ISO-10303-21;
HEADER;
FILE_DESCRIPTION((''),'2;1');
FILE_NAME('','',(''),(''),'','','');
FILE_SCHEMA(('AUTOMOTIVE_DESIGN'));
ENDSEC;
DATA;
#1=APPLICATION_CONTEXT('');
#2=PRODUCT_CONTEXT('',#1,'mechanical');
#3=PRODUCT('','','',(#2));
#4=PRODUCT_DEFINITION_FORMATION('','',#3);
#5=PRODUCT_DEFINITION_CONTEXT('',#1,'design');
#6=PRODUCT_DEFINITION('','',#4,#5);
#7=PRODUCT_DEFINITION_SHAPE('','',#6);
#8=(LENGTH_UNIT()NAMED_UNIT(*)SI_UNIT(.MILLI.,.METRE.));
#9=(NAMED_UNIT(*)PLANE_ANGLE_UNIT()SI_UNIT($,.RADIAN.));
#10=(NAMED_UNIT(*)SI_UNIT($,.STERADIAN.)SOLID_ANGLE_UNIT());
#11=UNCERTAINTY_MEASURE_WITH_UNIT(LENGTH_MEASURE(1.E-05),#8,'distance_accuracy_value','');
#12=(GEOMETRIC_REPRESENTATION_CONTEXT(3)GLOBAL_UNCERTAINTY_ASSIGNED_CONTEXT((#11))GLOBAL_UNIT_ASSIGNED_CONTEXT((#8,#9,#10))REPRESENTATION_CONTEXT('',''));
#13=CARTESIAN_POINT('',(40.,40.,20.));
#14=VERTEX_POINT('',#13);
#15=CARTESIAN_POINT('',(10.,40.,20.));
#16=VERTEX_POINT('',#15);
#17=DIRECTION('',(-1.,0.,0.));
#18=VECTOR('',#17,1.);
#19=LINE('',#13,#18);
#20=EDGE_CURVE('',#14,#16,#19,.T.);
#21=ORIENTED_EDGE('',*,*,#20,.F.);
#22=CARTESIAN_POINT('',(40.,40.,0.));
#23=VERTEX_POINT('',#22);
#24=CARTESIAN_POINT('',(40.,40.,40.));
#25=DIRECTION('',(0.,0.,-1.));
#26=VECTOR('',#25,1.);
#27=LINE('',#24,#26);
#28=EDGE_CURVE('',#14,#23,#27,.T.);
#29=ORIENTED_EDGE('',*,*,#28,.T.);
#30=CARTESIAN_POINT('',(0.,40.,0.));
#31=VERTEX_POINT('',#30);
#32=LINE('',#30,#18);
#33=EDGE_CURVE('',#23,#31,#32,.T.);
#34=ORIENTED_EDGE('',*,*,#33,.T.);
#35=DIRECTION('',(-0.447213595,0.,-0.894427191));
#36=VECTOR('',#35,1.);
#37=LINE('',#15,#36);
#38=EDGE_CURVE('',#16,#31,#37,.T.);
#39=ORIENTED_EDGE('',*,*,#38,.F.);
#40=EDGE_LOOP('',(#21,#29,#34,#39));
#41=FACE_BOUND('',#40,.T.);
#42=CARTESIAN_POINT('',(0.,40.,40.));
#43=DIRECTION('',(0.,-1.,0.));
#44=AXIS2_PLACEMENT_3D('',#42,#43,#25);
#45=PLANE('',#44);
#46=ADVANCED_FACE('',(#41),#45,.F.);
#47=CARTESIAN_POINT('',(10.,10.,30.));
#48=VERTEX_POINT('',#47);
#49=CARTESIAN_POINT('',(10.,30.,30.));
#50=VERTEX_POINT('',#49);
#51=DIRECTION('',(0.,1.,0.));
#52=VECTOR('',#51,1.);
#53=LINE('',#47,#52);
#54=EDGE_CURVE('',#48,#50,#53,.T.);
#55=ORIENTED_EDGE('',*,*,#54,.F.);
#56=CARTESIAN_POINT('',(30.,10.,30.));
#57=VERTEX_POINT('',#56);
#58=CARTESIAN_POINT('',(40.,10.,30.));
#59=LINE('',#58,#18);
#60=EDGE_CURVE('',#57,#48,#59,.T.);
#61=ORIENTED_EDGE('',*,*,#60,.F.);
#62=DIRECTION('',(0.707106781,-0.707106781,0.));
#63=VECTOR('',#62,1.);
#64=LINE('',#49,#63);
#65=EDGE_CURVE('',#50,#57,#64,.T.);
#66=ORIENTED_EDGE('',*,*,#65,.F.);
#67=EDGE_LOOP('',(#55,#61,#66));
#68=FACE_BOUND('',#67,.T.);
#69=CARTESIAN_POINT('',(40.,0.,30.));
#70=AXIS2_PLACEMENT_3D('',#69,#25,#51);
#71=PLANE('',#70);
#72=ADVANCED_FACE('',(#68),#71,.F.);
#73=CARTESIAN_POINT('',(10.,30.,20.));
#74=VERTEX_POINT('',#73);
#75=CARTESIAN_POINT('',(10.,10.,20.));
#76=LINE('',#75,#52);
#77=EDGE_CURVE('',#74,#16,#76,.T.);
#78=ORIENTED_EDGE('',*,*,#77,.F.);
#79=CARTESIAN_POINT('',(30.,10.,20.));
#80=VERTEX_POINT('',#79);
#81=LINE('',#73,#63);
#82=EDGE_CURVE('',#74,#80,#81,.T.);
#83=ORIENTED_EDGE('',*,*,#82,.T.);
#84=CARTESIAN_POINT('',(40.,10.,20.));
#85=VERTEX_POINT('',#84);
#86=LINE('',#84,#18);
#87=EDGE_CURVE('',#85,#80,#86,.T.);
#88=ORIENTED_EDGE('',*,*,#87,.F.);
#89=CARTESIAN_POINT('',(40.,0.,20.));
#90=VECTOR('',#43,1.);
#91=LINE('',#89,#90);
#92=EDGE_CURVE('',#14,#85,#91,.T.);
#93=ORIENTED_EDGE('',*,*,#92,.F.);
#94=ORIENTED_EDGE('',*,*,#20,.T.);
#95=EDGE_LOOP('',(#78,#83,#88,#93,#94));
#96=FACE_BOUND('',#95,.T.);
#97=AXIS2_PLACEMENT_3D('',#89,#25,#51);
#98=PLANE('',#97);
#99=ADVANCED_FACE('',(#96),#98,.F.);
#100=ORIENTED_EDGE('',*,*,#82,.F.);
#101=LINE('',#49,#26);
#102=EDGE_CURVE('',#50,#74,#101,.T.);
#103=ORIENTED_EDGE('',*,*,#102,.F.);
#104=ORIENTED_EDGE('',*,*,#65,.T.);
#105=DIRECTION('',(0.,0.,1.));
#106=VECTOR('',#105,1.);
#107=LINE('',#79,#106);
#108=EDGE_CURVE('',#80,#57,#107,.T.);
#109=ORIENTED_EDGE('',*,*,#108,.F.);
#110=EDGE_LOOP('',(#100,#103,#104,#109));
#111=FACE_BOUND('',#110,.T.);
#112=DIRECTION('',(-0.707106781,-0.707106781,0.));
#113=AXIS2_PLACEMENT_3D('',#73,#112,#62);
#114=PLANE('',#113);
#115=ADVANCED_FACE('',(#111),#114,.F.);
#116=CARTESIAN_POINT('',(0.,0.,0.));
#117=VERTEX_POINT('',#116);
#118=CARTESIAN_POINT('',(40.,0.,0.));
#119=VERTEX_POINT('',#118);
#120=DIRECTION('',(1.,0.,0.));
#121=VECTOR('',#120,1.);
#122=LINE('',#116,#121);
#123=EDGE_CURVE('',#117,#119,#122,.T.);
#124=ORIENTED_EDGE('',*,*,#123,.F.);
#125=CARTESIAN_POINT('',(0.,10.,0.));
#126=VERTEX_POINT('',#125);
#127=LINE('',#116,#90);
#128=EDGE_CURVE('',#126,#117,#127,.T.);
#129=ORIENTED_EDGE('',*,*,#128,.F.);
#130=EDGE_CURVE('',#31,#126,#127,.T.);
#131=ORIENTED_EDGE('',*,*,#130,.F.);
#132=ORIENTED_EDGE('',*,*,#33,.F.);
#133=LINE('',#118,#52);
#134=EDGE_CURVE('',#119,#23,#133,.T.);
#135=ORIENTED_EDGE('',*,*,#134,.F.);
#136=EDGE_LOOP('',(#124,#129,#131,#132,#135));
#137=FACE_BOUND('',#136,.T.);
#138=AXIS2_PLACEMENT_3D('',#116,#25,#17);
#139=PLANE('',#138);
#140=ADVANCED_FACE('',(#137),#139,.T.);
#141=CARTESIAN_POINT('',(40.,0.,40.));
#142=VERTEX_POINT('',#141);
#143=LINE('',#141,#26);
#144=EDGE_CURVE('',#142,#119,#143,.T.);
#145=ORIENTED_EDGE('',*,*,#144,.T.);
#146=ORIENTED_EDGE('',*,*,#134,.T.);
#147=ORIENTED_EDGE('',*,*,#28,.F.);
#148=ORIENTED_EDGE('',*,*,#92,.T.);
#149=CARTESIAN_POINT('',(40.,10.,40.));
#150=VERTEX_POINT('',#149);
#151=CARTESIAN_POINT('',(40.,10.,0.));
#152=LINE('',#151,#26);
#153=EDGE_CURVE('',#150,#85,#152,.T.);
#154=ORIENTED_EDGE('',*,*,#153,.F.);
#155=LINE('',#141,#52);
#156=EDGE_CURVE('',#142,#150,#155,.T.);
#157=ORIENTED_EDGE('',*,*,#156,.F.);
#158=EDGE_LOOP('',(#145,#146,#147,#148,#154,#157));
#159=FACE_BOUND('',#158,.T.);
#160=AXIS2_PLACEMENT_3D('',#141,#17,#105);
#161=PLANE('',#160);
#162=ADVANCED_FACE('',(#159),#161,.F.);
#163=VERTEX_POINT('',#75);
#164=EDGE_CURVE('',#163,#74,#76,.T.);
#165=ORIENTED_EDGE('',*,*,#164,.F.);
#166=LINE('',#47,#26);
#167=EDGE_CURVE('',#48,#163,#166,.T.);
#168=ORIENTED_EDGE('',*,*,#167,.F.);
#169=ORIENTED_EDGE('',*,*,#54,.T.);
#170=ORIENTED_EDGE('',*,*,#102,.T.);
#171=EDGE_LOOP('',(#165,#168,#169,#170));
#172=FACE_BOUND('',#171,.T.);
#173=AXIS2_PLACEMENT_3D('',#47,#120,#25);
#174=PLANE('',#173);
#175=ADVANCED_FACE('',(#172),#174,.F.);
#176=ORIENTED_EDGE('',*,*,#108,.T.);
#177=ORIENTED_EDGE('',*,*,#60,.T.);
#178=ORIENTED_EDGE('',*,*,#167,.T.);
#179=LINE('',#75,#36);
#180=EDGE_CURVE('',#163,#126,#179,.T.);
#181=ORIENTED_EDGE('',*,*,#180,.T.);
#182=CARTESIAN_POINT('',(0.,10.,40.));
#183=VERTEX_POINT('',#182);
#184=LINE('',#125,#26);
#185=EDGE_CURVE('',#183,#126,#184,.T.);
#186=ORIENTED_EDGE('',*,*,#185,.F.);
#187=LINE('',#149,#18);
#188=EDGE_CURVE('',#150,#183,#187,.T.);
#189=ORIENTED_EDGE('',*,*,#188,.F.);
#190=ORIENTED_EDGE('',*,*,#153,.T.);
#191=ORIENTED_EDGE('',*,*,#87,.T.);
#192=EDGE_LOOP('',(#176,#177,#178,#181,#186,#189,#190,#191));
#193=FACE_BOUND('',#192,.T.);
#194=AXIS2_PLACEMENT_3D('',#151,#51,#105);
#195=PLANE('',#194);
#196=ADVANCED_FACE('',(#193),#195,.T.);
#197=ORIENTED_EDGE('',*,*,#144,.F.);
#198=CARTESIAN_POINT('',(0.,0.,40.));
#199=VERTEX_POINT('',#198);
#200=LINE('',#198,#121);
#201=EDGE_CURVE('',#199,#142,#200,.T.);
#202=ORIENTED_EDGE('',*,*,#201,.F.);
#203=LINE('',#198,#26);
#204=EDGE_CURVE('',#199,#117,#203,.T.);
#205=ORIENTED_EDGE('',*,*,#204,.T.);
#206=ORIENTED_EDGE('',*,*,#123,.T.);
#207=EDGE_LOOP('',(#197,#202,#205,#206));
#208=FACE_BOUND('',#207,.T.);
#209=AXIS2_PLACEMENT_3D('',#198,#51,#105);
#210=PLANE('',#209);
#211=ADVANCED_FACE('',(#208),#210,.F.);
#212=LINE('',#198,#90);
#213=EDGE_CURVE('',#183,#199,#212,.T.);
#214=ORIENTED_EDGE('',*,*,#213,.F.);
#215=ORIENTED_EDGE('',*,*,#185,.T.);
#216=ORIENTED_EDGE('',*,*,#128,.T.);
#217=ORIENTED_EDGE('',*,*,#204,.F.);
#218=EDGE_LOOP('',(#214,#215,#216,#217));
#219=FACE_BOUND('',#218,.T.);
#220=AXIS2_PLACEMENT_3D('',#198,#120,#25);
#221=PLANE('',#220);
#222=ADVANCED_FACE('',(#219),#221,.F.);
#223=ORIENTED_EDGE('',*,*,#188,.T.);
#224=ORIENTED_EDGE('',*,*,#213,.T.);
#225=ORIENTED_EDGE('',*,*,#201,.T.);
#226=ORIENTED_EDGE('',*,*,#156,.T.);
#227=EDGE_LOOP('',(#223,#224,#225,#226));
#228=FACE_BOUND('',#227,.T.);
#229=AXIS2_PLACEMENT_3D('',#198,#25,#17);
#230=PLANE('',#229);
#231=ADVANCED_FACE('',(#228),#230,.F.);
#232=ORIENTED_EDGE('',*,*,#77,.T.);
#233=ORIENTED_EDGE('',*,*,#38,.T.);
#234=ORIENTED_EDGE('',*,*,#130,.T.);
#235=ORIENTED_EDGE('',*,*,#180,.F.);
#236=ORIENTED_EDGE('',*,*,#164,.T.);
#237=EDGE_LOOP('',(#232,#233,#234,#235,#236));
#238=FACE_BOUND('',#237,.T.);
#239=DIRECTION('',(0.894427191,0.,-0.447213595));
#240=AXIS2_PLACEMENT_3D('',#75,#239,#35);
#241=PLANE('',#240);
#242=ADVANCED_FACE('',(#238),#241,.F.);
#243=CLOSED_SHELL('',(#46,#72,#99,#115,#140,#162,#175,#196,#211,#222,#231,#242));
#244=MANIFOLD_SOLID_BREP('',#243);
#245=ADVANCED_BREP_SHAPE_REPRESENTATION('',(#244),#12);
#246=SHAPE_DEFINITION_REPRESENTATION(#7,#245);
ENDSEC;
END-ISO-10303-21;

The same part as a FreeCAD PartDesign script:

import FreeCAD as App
import Part
import Sketcher


def add_polygon(sketch, points):
    """Adds a closed chain of lines whose ends are joined by coincident constraints."""
    first, n = sketch.GeometryCount, len(points)
    for a, b in zip(points, points[1:] + points[:1]):
        sketch.addGeometry(Part.LineSegment(App.Vector(*a, 0), App.Vector(*b, 0)), False)
    for i in range(n):
        sketch.addConstraint(Sketcher.Constraint("Coincident", first + i, 2, first + (i + 1) % n, 1))

doc = App.newDocument("Part")
params = doc.addObject("Spreadsheet::Sheet", "Params")
for row, (alias, value) in enumerate([
    ("sketch1_width", "40 mm"),
    ("pad1_length", "40 mm"),
    ("sketch2_width", "10 mm"),
    ("pocket1_length", "40 mm"),
    ("sketch3_width", "10 mm"),
    ("pocket2_length", "20 mm"),
    ("sketch4_width", "10 mm"),
    ("pocket3_length", "20 mm"),
    ("sketch5_width", "10 mm"),
    ("sketch5_height", "20 mm"),
    ("pocket4_length", "30 mm"),
    ("sketch6_width", "20 mm"),
    ("pocket5_length", "10 mm"),
], start=1):
    params.set(f"A{row}", alias)
    params.set(f"B{row}", "=" + value)
    params.setAlias(f"B{row}", alias)

body = doc.addObject("PartDesign::Body", "Body")

sketch1 = body.newObject("Sketcher::SketchObject", "Sketch")
sketch1.AttachmentSupport = (doc.getObject("XY_Plane"), [""])
sketch1.MapMode = "FlatFace"
add_polygon(sketch1, [(0, 40), (0, 0), (40, 0), (40, 40)])
sketch1.addConstraint(Sketcher.Constraint("Vertical", 0))
sketch1.addConstraint(Sketcher.Constraint("Horizontal", 1))
sketch1.addConstraint(Sketcher.Constraint("Vertical", 2))
sketch1.addConstraint(Sketcher.Constraint("Horizontal", 3))
sketch1.addConstraint(Sketcher.Constraint("Coincident", 0, 2, -1, 1))
sketch1.addConstraint(Sketcher.Constraint("Equal", 3, 0))
sketch1.addConstraint(Sketcher.Constraint("DistanceX", 1, 1, 1, 2, 40.0))
sketch1.setExpression("Constraints[10]", "Params.sketch1_width")
pad1 = body.newObject("PartDesign::Pad", "Pad")
pad1.Profile = sketch1
pad1.setExpression("Length", "Params.pad1_length")

sketch2 = body.newObject("Sketcher::SketchObject", "Sketch001")
sketch2.AttachmentSupport = (doc.getObject("YZ_Plane"), [""])
sketch2.MapMode = "FlatFace"
add_polygon(sketch2, [(40, 20), (30, 20), (30, 30), (10, 30), (10, 40), (40, 40)])
sketch2.addConstraint(Sketcher.Constraint("Horizontal", 0))
sketch2.addConstraint(Sketcher.Constraint("Vertical", 1))
sketch2.addConstraint(Sketcher.Constraint("Horizontal", 2))
sketch2.addConstraint(Sketcher.Constraint("Vertical", 3))
sketch2.addConstraint(Sketcher.Constraint("Horizontal", 4))
sketch2.addConstraint(Sketcher.Constraint("Vertical", 5))
sketch2.addConstraint(Sketcher.Constraint("Equal", 0, 1))
sketch2.addConstraint(Sketcher.Constraint("Equal", 1, 3))
sketch2.addConstraint(Sketcher.Constraint("Equal", 2, 5))
sketch2.addConstraint(Sketcher.Constraint("DistanceX", 0, 2, 0, 1, 10.0))
sketch2.addConstraint(Sketcher.Constraint("DistanceX", -1, 1, 0, 2, 30.0))
sketch2.addConstraint(Sketcher.Constraint("DistanceY", -1, 1, 0, 2, 20.0))
sketch2.setExpression("Constraints[15]", "Params.sketch2_width")
pocket1 = body.newObject("PartDesign::Pocket", "Pocket")
pocket1.Profile = sketch2
pocket1.setExpression("Length", "Params.pocket1_length")
pocket1.Reversed = True

sketch3 = body.newObject("Sketcher::SketchObject", "Sketch002")
sketch3.AttachmentSupport = (doc.getObject("XZ_Plane"), [""])
sketch3.MapMode = "FlatFace"
sketch3.AttachmentOffset = App.Placement(App.Vector(0, 0, -30), App.Rotation())
add_polygon(sketch3, [(30, 20), (30, 30), (40, 30), (40, 20)])
sketch3.addConstraint(Sketcher.Constraint("Vertical", 0))
sketch3.addConstraint(Sketcher.Constraint("Horizontal", 1))
sketch3.addConstraint(Sketcher.Constraint("Vertical", 2))
sketch3.addConstraint(Sketcher.Constraint("Horizontal", 3))
sketch3.addConstraint(Sketcher.Constraint("Equal", 3, 0))
sketch3.addConstraint(Sketcher.Constraint("DistanceX", 1, 1, 1, 2, 10.0))
sketch3.addConstraint(Sketcher.Constraint("DistanceX", -1, 1, 0, 2, 30.0))
sketch3.addConstraint(Sketcher.Constraint("DistanceY", -1, 1, 0, 2, 30.0))
sketch3.setExpression("Constraints[9]", "Params.sketch3_width")
pocket2 = body.newObject("PartDesign::Pocket", "Pocket001")
pocket2.Profile = sketch3
pocket2.setExpression("Length", "Params.pocket2_length")
pocket2.Reversed = True

sketch4 = body.newObject("Sketcher::SketchObject", "Sketch003")
sketch4.AttachmentSupport = (doc.getObject("XZ_Plane"), [""])
sketch4.MapMode = "FlatFace"
sketch4.AttachmentOffset = App.Placement(App.Vector(0, 0, -30), App.Rotation())
add_polygon(sketch4, [(0, 20), (0, 30), (10, 30), (10, 20)])
sketch4.addConstraint(Sketcher.Constraint("Vertical", 0))
sketch4.addConstraint(Sketcher.Constraint("Horizontal", 1))
sketch4.addConstraint(Sketcher.Constraint("Vertical", 2))
sketch4.addConstraint(Sketcher.Constraint("Horizontal", 3))
sketch4.addConstraint(Sketcher.Constraint("PointOnObject", 0, 2, -2))
sketch4.addConstraint(Sketcher.Constraint("Equal", 3, 0))
sketch4.addConstraint(Sketcher.Constraint("DistanceX", 1, 1, 1, 2, 10.0))
sketch4.addConstraint(Sketcher.Constraint("DistanceY", -1, 1, 0, 2, 30.0))
sketch4.setExpression("Constraints[10]", "Params.sketch4_width")
pocket3 = body.newObject("PartDesign::Pocket", "Pocket002")
pocket3.Profile = sketch4
pocket3.setExpression("Length", "Params.pocket3_length")
pocket3.Reversed = True

sketch5 = body.newObject("Sketcher::SketchObject", "Sketch004")
sketch5.AttachmentSupport = (doc.getObject("XZ_Plane"), [""])
sketch5.MapMode = "FlatFace"
sketch5.AttachmentOffset = App.Placement(App.Vector(0, 0, -40), App.Rotation())
add_polygon(sketch5, [(10, 20), (0, 0), (0, 20)])
sketch5.addConstraint(Sketcher.Constraint("Vertical", 1))
sketch5.addConstraint(Sketcher.Constraint("Horizontal", 2))
sketch5.addConstraint(Sketcher.Constraint("Coincident", 0, 2, -1, 1))
sketch5.addConstraint(Sketcher.Constraint("DistanceX", 2, 1, 2, 2, 10.0))
sketch5.addConstraint(Sketcher.Constraint("DistanceY", 1, 1, 1, 2, 20.0))
sketch5.setExpression("Constraints[6]", "Params.sketch5_width")
sketch5.setExpression("Constraints[7]", "Params.sketch5_height")
pocket4 = body.newObject("PartDesign::Pocket", "Pocket003")
pocket4.Profile = sketch5
pocket4.setExpression("Length", "Params.pocket4_length")
pocket4.Reversed = True

sketch6 = body.newObject("Sketcher::SketchObject", "Sketch005")
sketch6.AttachmentSupport = (doc.getObject("XY_Plane"), [""])
sketch6.MapMode = "FlatFace"
sketch6.AttachmentOffset = App.Placement(App.Vector(0, 0, 30), App.Rotation())
add_polygon(sketch6, [(10, 30), (30, 10), (30, 30)])
sketch6.addConstraint(Sketcher.Constraint("Vertical", 1))
sketch6.addConstraint(Sketcher.Constraint("Horizontal", 2))
sketch6.addConstraint(Sketcher.Constraint("Equal", 2, 1))
sketch6.addConstraint(Sketcher.Constraint("DistanceX", 2, 2, 2, 1, 20.0))
sketch6.addConstraint(Sketcher.Constraint("DistanceX", -1, 1, 0, 2, 30.0))
sketch6.addConstraint(Sketcher.Constraint("DistanceY", -1, 1, 0, 2, 10.0))
sketch6.setExpression("Constraints[6]", "Params.sketch6_width")
pocket5 = body.newObject("PartDesign::Pocket", "Pocket004")
pocket5.Profile = sketch6
pocket5.setExpression("Length", "Params.pocket5_length")

doc.recompute()
